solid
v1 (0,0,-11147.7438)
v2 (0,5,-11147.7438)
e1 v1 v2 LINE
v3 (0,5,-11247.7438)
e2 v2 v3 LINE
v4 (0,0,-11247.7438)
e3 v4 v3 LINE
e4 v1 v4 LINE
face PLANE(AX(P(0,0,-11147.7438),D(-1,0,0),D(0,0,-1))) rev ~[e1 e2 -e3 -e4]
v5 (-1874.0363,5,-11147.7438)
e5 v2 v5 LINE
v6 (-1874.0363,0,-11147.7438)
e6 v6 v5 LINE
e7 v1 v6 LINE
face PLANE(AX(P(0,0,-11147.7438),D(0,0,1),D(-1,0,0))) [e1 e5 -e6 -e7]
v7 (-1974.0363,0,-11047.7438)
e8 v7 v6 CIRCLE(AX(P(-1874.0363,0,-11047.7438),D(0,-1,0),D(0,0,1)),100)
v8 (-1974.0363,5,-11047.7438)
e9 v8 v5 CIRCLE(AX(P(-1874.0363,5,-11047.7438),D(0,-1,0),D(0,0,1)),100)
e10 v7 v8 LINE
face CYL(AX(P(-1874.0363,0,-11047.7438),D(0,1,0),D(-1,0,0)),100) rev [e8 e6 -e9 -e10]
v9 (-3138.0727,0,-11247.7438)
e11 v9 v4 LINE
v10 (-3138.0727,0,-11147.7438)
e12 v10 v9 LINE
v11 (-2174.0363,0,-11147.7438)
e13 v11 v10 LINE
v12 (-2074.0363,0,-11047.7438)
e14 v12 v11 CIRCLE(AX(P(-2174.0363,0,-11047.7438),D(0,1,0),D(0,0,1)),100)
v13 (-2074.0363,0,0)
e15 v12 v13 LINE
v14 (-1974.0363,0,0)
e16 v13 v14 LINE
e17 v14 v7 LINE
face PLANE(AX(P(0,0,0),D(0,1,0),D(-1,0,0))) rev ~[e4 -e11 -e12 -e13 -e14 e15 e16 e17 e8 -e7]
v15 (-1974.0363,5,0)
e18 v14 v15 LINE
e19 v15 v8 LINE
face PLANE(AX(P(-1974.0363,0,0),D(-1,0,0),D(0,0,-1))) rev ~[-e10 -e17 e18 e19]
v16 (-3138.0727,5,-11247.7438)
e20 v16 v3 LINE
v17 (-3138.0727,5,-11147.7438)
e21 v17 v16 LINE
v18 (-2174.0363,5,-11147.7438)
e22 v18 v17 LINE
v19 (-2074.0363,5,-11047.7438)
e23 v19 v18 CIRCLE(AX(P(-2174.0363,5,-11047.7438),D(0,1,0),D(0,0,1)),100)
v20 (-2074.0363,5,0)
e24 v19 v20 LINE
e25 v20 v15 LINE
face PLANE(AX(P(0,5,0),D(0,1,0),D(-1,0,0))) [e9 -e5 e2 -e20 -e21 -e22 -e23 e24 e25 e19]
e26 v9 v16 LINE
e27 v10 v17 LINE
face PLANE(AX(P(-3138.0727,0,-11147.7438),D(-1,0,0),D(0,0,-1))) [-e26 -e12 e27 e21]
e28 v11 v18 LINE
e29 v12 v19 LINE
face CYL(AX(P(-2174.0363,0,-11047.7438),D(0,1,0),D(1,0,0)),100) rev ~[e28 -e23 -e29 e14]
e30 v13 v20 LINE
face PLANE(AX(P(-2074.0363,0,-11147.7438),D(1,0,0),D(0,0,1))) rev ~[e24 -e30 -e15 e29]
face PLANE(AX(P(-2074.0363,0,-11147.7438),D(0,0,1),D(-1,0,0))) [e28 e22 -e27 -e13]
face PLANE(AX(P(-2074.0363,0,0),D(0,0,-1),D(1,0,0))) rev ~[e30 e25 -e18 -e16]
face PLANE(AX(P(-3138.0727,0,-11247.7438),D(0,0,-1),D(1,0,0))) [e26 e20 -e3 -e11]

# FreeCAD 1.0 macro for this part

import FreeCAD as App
import Part
import Sketcher
from FreeCAD import Vector


def edges_at(feature, points):
    """Names of the edges that pass closest to the given points."""
    edges = feature.Shape.Edges
    near = lambda p: min(range(len(edges)), key=lambda i: edges[i].distToShape(Part.Vertex(*p))[0])
    return sorted({f"Edge{near(p) + 1}" for p in points})

doc = App.newDocument("Part")
body = doc.addObject("PartDesign::Body", "Body")

sketch1 = body.newObject("Sketcher::SketchObject", "Sketch")
sketch1.AttachmentSupport = (doc.getObject("XZ_Plane"), [""])
sketch1.MapMode = "FlatFace"
sketch1.addGeometry([
    Part.LineSegment(Vector(-2074, 0, 0), Vector(-1974, 0, 0)),
    Part.LineSegment(Vector(-1974, 0, 0), Vector(-1974, -11148, 0)),
    Part.LineSegment(Vector(-1974, -11148, 0), Vector(0, -11148, 0)),
    Part.LineSegment(Vector(0, -11148, 0), Vector(0, -11248, 0)),
    Part.LineSegment(Vector(0, -11248, 0), Vector(-3138, -11248, 0)),
    Part.LineSegment(Vector(-3138, -11248, 0), Vector(-3138, -11148, 0)),
    Part.LineSegment(Vector(-3138, -11148, 0), Vector(-2074, -11148, 0)),
    Part.LineSegment(Vector(-2074, -11148, 0), Vector(-2074, 0, 0)),
], False)
sketch1.addConstraint([
    Sketcher.Constraint("Coincident", 0, 2, 1, 1),
    Sketcher.Constraint("Coincident", 1, 2, 2, 1),
    Sketcher.Constraint("Coincident", 2, 2, 3, 1),
    Sketcher.Constraint("Coincident", 3, 2, 4, 1),
    Sketcher.Constraint("Coincident", 4, 2, 5, 1),
    Sketcher.Constraint("Coincident", 5, 2, 6, 1),
    Sketcher.Constraint("Coincident", 6, 2, 7, 1),
    Sketcher.Constraint("Coincident", 7, 2, 0, 1),
    Sketcher.Constraint("Horizontal", 0),
    Sketcher.Constraint("Vertical", 1),
    Sketcher.Constraint("Horizontal", 2),
    Sketcher.Constraint("Vertical", 3),
    Sketcher.Constraint("Horizontal", 4),
    Sketcher.Constraint("Vertical", 5),
    Sketcher.Constraint("Horizontal", 6),
    Sketcher.Constraint("Vertical", 7),
    Sketcher.Constraint("PointOnObject", 0, 2, -1),
    Sketcher.Constraint("PointOnObject", 2, 2, -2),
    Sketcher.Constraint("Horizontal", 2, 2, 5, 2),
    Sketcher.Constraint("Equal", 0, 3),
    Sketcher.Constraint("DistanceX", 0, 1, 0, 2, 100.0),
    Sketcher.Constraint("DistanceX", 2, 1, 2, 2, 1974.0363),
    Sketcher.Constraint("DistanceX", 4, 2, 4, 1, 3138.0727),
    Sketcher.Constraint("DistanceY", 1, 2, 1, 1, 11147.7438),
])
pad1 = body.newObject("PartDesign::Pad", "Pad")
pad1.Profile = sketch1
pad1.Length = 5
pad1.Reversed = True
doc.recompute()

fillet = body.newObject("PartDesign::Fillet", "Fillet")
fillet.Base = (pad1, edges_at(pad1, [(-1974.036, 2.5, -11147.744), (-2074.036, 2.5, -11147.744)]))
fillet.Radius = 100

doc.recompute()
